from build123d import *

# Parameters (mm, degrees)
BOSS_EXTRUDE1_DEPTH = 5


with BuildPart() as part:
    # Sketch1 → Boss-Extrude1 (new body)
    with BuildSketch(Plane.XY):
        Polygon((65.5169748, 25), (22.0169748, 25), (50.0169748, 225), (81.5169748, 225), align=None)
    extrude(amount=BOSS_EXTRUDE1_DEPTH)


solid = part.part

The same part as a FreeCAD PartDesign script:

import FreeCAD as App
import Part
import Sketcher


def add_polygon(sketch, points):
    """Adds a closed chain of lines whose ends are joined by coincident constraints."""
    first, n = sketch.GeometryCount, len(points)
    for a, b in zip(points, points[1:] + points[:1]):
        sketch.addGeometry(Part.LineSegment(App.Vector(*a, 0), App.Vector(*b, 0)), False)
    for i in range(n):
        sketch.addConstraint(Sketcher.Constraint("Coincident", first + i, 2, first + (i + 1) % n, 1))

doc = App.newDocument("Part")
body = doc.addObject("PartDesign::Body", "Body")

sketch1 = doc.addObject("Sketcher::SketchObject", "Sketch")
body.addObject(sketch1)
sketch1.AttachmentSupport = (doc.XY_Plane, [""])
sketch1.MapMode = "FlatFace"
add_polygon(sketch1, [(22.016975, 25), (65.516975, 25), (81.516975, 225), (50.016975, 225)])
sketch1.addConstraint([
    Sketcher.Constraint("Horizontal", 0),
    Sketcher.Constraint("Horizontal", 2),
    Sketcher.Constraint("DistanceX", 0, 1, 0, 2, 43.5),
    Sketcher.Constraint("DistanceX", 2, 2, 2, 1, 31.5),
    Sketcher.Constraint("DistanceY", -1, 1, 0, 2, 25.0),
    Sketcher.Constraint("DistanceY", -1, 1, 1, 2, 225.0),
    Sketcher.Constraint("DistanceX", 0, 2, 1, 2, 16.0),
    Sketcher.Constraint("DistanceX", -1, 1, 0, 2, 65.516975),
])
pad1 = doc.addObject("PartDesign::Pad", "Pad")
body.addObject(pad1)
pad1.Profile = sketch1
pad1.Length = 5

doc.recompute()
